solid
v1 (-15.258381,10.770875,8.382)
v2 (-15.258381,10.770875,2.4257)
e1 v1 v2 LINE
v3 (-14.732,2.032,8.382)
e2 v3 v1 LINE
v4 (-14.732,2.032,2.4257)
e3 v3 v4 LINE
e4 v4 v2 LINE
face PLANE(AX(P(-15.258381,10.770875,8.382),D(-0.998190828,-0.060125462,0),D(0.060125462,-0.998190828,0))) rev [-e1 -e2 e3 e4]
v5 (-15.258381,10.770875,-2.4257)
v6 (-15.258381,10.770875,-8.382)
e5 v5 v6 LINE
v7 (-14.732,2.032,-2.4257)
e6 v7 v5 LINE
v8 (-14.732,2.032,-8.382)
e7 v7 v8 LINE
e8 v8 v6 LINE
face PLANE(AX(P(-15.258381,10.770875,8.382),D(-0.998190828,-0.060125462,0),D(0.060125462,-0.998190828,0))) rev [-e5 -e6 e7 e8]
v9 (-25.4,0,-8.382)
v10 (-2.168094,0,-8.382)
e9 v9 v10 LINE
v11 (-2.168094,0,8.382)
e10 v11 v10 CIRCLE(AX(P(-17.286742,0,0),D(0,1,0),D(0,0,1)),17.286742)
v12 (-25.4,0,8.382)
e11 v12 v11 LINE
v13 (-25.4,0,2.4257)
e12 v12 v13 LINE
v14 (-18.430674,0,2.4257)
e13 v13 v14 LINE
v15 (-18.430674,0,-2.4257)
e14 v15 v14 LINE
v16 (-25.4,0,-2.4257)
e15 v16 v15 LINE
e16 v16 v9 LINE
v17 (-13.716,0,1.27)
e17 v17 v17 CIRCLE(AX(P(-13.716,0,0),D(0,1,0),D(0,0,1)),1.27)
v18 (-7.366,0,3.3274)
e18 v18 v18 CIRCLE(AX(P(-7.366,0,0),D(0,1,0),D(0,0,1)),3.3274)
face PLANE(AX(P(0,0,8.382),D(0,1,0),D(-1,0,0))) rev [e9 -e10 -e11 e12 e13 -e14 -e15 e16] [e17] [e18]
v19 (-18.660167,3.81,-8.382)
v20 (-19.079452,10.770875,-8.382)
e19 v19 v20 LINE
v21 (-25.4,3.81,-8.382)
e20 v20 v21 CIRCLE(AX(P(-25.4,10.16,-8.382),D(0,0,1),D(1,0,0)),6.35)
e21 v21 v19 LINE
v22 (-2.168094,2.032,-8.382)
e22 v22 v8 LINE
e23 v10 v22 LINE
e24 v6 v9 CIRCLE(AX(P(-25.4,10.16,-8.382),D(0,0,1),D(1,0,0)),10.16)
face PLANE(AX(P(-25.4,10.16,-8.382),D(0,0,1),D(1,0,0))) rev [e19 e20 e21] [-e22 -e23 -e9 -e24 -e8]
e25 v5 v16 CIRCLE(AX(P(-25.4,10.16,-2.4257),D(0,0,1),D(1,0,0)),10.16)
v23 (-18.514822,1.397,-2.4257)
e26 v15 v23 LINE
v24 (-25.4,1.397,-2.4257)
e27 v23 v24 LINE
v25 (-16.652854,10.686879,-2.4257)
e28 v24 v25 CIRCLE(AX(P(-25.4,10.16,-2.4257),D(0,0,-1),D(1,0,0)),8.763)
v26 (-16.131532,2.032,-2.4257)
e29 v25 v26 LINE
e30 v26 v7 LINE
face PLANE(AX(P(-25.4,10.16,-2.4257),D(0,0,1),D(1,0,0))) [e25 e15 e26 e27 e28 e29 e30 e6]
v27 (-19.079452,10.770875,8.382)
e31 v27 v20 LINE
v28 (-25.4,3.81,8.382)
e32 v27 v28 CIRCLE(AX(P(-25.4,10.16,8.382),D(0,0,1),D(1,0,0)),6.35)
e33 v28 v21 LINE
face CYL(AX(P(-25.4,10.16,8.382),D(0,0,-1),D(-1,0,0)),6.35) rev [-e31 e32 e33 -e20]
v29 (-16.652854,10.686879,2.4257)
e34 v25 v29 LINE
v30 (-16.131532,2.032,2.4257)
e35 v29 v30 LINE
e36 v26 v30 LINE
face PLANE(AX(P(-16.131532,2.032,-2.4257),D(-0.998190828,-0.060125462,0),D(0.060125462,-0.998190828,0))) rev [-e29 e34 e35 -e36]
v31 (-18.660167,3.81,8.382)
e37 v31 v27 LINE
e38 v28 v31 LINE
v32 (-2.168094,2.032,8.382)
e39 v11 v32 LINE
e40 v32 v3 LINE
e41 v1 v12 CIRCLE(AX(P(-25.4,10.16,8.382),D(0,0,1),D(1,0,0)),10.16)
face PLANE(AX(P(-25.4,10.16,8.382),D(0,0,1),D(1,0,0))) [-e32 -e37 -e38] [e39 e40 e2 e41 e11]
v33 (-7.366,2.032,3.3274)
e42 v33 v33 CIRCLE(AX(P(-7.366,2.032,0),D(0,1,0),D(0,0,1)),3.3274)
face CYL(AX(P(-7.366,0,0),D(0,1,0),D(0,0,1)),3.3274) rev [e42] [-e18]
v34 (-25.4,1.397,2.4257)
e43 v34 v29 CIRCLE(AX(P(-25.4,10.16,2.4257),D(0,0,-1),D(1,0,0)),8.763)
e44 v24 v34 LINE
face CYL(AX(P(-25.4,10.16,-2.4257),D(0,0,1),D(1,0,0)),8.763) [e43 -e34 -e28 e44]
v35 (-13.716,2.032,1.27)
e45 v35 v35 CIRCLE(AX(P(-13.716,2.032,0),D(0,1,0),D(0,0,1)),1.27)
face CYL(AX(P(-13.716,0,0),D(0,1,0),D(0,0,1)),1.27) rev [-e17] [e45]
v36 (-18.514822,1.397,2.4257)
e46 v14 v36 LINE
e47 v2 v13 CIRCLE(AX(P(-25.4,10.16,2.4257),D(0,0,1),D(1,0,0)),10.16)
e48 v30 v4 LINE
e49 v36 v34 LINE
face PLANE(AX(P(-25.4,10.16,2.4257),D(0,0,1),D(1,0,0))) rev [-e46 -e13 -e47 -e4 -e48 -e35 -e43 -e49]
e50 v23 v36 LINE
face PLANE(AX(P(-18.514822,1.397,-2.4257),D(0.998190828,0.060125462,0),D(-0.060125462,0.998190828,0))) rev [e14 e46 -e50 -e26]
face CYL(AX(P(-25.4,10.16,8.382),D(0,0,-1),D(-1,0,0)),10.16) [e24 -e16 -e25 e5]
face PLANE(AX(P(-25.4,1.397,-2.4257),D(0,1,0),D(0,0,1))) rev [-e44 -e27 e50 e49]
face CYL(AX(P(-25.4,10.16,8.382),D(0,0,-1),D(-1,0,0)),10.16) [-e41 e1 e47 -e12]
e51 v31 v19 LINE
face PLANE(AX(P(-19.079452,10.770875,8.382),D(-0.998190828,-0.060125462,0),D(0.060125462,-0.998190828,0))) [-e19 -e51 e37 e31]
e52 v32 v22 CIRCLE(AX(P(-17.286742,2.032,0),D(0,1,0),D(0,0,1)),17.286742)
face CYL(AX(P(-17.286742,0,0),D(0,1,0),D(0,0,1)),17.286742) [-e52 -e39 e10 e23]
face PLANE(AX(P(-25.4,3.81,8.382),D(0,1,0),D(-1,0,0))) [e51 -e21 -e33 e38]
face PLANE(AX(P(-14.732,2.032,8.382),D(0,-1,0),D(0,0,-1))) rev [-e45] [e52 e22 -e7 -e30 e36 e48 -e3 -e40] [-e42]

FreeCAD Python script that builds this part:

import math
import FreeCAD as App
import Part
import Sketcher

V = App.Vector
Q = App.Units.Quantity

doc = App.newDocument("Part")
params = doc.addObject("Spreadsheet::Sheet", "Params")
for row, (alias, value) in enumerate([
    ("sketch1_radius", "0.4 in"),
    ("sketch1_width", "1 in"),
    ("sketch1_radius2", "0.25 in"),
    ("sketch1_width2", "0.58 in"),
    ("sketch1_height", "0.08 in"),
    ("pad1_length", "0.66 in"),
    ("sketch2_height", "0.33 in"),
    ("pocket1_length", "0.08 in"),
    ("sketch3_diameter", "0.1 in"),
    ("sketch3_diameter2", "0.262 in"),
    ("sketch4_radius", "0.4 in"),
    ("sketch4_radius2", "0.345 in"),
    ("pocket3_length", "0.191 in"),
], start=1):
    params.set(f"A{row}", alias)
    params.set(f"B{row}", "=" + value)
    params.setAlias(f"B{row}", alias)

body = doc.addObject("PartDesign::Body", "Body")

# Sketch on XY plane
sketch1 = doc.addObject("Sketcher::SketchObject", "Sketch")
body.addObject(sketch1)
sketch1.AttachmentSupport = (doc.XY_Plane, [""])
sketch1.MapMode = "FlatFace"
sketch1.addGeometry([
    Part.LineSegment(V(-25.4, 0, 0), V(0, 0, 0)),  # 0
    Part.LineSegment(V(0, 0, 0), V(0, 2, 0)),  # 1
    Part.LineSegment(V(0, 2, 0), V(-14.7, 2, 0)),  # 2
    Part.LineSegment(V(-14.7, 2, 0), V(-15.3, 10.8, 0)),  # 3
    Part.ArcOfCircle(Part.Circle(V(-25.4, 10.2, 0), V(0, 0, 1), 10.2), math.radians(3), math.radians(270)),  # 4
    Part.ArcOfCircle(Part.Circle(V(-25.4, 10.2, 0), V(0, 0, 1), 6.3), math.radians(6), math.radians(270)),  # 5
    Part.LineSegment(V(-19.1, 10.8, 0), V(-18.7, 3.8, 0)),  # 6
    Part.LineSegment(V(-18.7, 3.8, 0), V(-25.4, 3.8, 0)),  # 7
], False)
sketch1.addConstraint([
    Sketcher.Constraint("Coincident", 0, 2, 1, 1),
    Sketcher.Constraint("Coincident", 1, 2, 2, 1),
    Sketcher.Constraint("Coincident", 2, 2, 3, 1),
    Sketcher.Constraint("Tangent", 3, 2, 4, 1),
    Sketcher.Constraint("Tangent", 4, 2, 0, 1),
    Sketcher.Constraint("Coincident", 5, 1, 6, 1),
    Sketcher.Constraint("Coincident", 6, 2, 7, 1),
    Sketcher.Constraint("Tangent", 7, 2, 5, 2),
    Sketcher.Constraint("Horizontal", 0),
    Sketcher.Constraint("Vertical", 1),
    Sketcher.Constraint("Horizontal", 2),
    Sketcher.Constraint("Horizontal", 7),
    Sketcher.Constraint("Coincident", 0, 2, -1, 1),
    Sketcher.Constraint("Coincident", 5, 3, 4, 3),
    Sketcher.Constraint("Parallel", 3, 6),
    Sketcher.Constraint("Horizontal", 3, 2, 5, 1),
    Sketcher.Constraint("Radius", 4, Q("0.4 in")),
    Sketcher.Constraint("DistanceX", 0, 1, 0, 2, Q("1 in")),
    Sketcher.Constraint("Radius", 5, Q("0.25 in")),
    Sketcher.Constraint("DistanceX", 2, 2, 2, 1, Q("0.58 in")),
    Sketcher.Constraint("DistanceY", 1, 1, 1, 2, Q("0.08 in")),
])
sketch1.setExpression("Constraints[16]", "Params.sketch1_radius")
sketch1.setExpression("Constraints[17]", "Params.sketch1_width")
sketch1.setExpression("Constraints[18]", "Params.sketch1_radius2")
sketch1.setExpression("Constraints[19]", "Params.sketch1_width2")
sketch1.setExpression("Constraints[20]", "Params.sketch1_height")
pad1 = doc.addObject("PartDesign::Pad", "Pad")
body.addObject(pad1)
pad1.Profile = sketch1
pad1.setExpression("Length", "Params.pad1_length")
pad1.Midplane = True

# Sketch on XZ plane
sketch2 = doc.addObject("Sketcher::SketchObject", "Sketch001")
body.addObject(sketch2)
sketch2.AttachmentSupport = (doc.XZ_Plane, [""])
sketch2.MapMode = "FlatFace"
sketch2.AttachmentOffset = App.Placement(V(0, 0, -0.08 * 25.4), App.Rotation())
sketch2.addGeometry([
    Part.LineSegment(V(0, 8.4, 0), V(0, 0, 0)),  # 0
    Part.ArcOfCircle(Part.Circle(V(-17.3, 0, 0), V(0, 0, 1), 17.3), math.radians(0), math.radians(29)),  # 1
    Part.LineSegment(V(-2.2, 8.4, 0), V(0, 8.4, 0)),  # 2
    Part.LineSegment(V(0, 0, 0), V(0, -8.4, 0)),  # 3
    Part.LineSegment(V(0, -8.4, 0), V(-2.2, -8.4, 0)),  # 4
    Part.ArcOfCircle(Part.Circle(V(-17.3, 0, 0), V(0, 0, 1), 17.3), math.radians(-29), math.radians(0)),  # 5
], False)
sketch2.addConstraint([
    Sketcher.Constraint("Tangent", 0, 2, 1, 1),
    Sketcher.Constraint("Coincident", 1, 2, 2, 1),
    Sketcher.Constraint("Coincident", 2, 2, 0, 1),
    Sketcher.Constraint("Coincident", 3, 2, 4, 1),
    Sketcher.Constraint("Coincident", 4, 2, 5, 1),
    Sketcher.Constraint("Tangent", 5, 2, 3, 1),
    Sketcher.Constraint("Vertical", 0),
    Sketcher.Constraint("Horizontal", 2),
    Sketcher.Constraint("Vertical", 3),
    Sketcher.Constraint("Horizontal", 4),
    Sketcher.Constraint("Coincident", 0, 2, -1, 1),
    Sketcher.Constraint("Coincident", 5, 2, -1, 1),
    Sketcher.Constraint("Equal", 1, 5),
    Sketcher.Constraint("Vertical", 1, 2, 4, 2),
    Sketcher.Constraint("DistanceY", 0, 2, 0, 1, Q("0.33 in")),
    Sketcher.Constraint("Radius", 1, 17.286742),
])
sketch2.setExpression("Constraints[14]", "Params.sketch2_height")
pocket1 = doc.addObject("PartDesign::Pocket", "Pocket")
body.addObject(pocket1)
pocket1.Profile = sketch2
pocket1.setExpression("Length", "Params.pocket1_length")
pocket1.Reversed = True

# Sketch on XZ plane
sketch3 = doc.addObject("Sketcher::SketchObject", "Sketch002")
body.addObject(sketch3)
sketch3.AttachmentSupport = (doc.XZ_Plane, [""])
sketch3.MapMode = "FlatFace"
sketch3.AttachmentOffset = App.Placement(V(0, 0, -0.08 * 25.4), App.Rotation())
sketch3.addGeometry([
    Part.Circle(V(-7.4, 0, 0), V(0, 0, 1), 3.3),
    Part.Circle(V(-13.7, 0, 0), V(0, 0, 1), 1.3),
], False)
sketch3.addConstraint([
    Sketcher.Constraint("PointOnObject", 0, 3, -1),
    Sketcher.Constraint("PointOnObject", 1, 3, -1),
    Sketcher.Constraint("Diameter", 1, Q("0.1 in")),
    Sketcher.Constraint("Diameter", 0, Q("0.262 in")),
    Sketcher.Constraint("DistanceX", 0, 3, -1, 1, Q("0.29 in")),
    Sketcher.Constraint("DistanceX", 1, 3, -1, 1, Q("0.54 in")),
])
sketch3.setExpression("Constraints[2]", "Params.sketch3_diameter")
sketch3.setExpression("Constraints[3]", "Params.sketch3_diameter2")
pocket2 = doc.addObject("PartDesign::Pocket", "Pocket001")
body.addObject(pocket2)
pocket2.Profile = sketch3
pocket2.Type = "ThroughAll"
pocket2.Reversed = True

# Sketch on XY plane
sketch4 = doc.addObject("Sketcher::SketchObject", "Sketch003")
body.addObject(sketch4)
sketch4.AttachmentSupport = (doc.XY_Plane, [""])
sketch4.MapMode = "FlatFace"
sketch4.addGeometry([
    Part.LineSegment(V(-25.4, 0, 0), V(-18.4, 0, 0)),  # 0
    Part.LineSegment(V(-18.4, 0, 0), V(-18.5, 1.4, 0)),  # 1
    Part.LineSegment(V(-18.5, 1.4, 0), V(-25.4, 1.4, 0)),  # 2
    Part.ArcOfCircle(Part.Circle(V(-25.4, 10.2, 0), V(0, 0, 1), 8.8), math.radians(3), math.radians(270)),  # 3
    Part.LineSegment(V(-16.7, 10.7, 0), V(-16.1, 2, 0)),  # 4
    Part.LineSegment(V(-16.1, 2, 0), V(-14.7, 2, 0)),  # 5
    Part.LineSegment(V(-14.7, 2, 0), V(-15.3, 10.8, 0)),  # 6
    Part.ArcOfCircle(Part.Circle(V(-25.4, 10.2, 0), V(0, 0, 1), 10.2), math.radians(3), math.radians(270)),  # 7
], False)
sketch4.addConstraint([
    Sketcher.Constraint("Coincident", 0, 2, 1, 1),
    Sketcher.Constraint("Coincident", 1, 2, 2, 1),
    Sketcher.Constraint("Tangent", 2, 2, 3, 2),
    Sketcher.Constraint("Tangent", 3, 1, 4, 1),
    Sketcher.Constraint("Coincident", 4, 2, 5, 1),
    Sketcher.Constraint("Coincident", 5, 2, 6, 1),
    Sketcher.Constraint("Tangent", 6, 2, 7, 1),
    Sketcher.Constraint("Tangent", 7, 2, 0, 1),
    Sketcher.Constraint("Horizontal", 0),
    Sketcher.Constraint("Horizontal", 2),
    Sketcher.Constraint("Horizontal", 5),
    Sketcher.Constraint("Coincident", 7, 3, 3, 3),
    Sketcher.Constraint("PointOnObject", 0, 2, -1),
    Sketcher.Constraint("Parallel", 1, 4),
    Sketcher.Constraint("Parallel", 4, 6),
    Sketcher.Constraint("Radius", 7, Q("0.4 in")),
    Sketcher.Constraint("DistanceX", 3, 3, -1, 1, Q("1 in")),
    Sketcher.Constraint("Radius", 3, Q("0.345 in")),
    Sketcher.Constraint("DistanceY", -1, 1, 4, 2, Q("0.08 in")),
    Sketcher.Constraint("DistanceX", 5, 2, -1, 1, Q("0.58 in")),
    Sketcher.Constraint("DistanceX", 2, 2, 2, 1, 6.885178),
])
sketch4.setExpression("Constraints[15]", "Params.sketch4_radius")
sketch4.setExpression("Constraints[17]", "Params.sketch4_radius2")
pocket3 = doc.addObject("PartDesign::Pocket", "Pocket002")
body.addObject(pocket3)
pocket3.Profile = sketch4
pocket3.setExpression("Length", "Params.pocket3_length")
pocket3.Midplane = True

doc.recompute()
